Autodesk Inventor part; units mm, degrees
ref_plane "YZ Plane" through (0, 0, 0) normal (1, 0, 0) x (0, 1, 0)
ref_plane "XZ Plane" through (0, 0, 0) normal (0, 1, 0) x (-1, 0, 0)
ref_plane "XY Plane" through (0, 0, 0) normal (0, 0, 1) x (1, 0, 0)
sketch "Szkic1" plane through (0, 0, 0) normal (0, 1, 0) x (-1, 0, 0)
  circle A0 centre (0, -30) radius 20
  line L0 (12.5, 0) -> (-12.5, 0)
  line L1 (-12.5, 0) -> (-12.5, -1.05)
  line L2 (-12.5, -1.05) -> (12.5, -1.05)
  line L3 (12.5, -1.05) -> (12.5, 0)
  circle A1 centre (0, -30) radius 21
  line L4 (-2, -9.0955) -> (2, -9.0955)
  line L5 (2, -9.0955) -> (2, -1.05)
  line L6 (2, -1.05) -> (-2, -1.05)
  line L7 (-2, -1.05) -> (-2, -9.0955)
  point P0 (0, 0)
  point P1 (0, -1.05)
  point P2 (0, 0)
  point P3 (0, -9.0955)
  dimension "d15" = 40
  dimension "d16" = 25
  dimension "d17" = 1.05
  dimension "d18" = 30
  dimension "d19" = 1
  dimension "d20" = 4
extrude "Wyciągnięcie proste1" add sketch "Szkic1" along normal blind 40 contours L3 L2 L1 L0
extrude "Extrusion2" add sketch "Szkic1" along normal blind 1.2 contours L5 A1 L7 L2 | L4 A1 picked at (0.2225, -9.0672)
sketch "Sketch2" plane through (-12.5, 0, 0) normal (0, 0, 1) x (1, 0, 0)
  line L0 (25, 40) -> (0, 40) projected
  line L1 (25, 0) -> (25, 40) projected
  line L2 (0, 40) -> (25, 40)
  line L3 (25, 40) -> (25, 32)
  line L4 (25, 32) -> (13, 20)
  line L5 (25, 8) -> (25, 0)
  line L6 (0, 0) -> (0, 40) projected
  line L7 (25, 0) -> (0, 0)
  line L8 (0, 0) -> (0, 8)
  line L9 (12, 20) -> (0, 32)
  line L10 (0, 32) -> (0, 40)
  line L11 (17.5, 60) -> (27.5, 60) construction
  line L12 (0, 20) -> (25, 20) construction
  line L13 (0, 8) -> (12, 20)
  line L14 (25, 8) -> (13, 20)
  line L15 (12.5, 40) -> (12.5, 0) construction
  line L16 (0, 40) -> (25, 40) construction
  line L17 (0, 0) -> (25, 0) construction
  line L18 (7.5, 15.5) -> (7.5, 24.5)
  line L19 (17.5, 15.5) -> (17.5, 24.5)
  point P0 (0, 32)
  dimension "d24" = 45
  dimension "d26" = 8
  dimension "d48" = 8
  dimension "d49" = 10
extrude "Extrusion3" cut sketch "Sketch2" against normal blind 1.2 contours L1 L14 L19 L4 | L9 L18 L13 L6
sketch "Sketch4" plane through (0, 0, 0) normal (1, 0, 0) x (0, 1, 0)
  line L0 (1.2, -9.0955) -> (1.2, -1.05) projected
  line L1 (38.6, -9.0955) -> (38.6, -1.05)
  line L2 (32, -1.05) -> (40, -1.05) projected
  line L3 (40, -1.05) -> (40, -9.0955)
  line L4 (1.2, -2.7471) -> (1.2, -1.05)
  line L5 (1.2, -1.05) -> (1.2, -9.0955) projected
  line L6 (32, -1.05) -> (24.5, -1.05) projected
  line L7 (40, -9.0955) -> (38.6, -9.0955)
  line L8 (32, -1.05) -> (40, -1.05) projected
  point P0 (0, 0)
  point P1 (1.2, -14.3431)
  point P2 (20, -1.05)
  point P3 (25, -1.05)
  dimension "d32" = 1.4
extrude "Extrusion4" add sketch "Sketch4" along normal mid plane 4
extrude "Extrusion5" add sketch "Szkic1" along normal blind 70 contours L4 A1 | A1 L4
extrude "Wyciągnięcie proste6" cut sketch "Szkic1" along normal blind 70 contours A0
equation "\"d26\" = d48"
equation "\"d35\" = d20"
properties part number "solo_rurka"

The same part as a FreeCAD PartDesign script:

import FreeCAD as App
import Part
import Sketcher

doc = App.newDocument("Part")
body = doc.addObject("PartDesign::Body", "Body")

# Sketch on XZ plane
sketch1 = body.newObject("Sketcher::SketchObject", "Sketch")
sketch1.AttachmentSupport = (doc.getObject("XZ_Plane"), [""])
sketch1.MapMode = "FlatFace"
sketch1.addGeometry([
    Part.LineSegment(App.Vector(-12.5, -1.1, 0), App.Vector(-12.5, 0, 0)),
    Part.LineSegment(App.Vector(-12.5, 0, 0), App.Vector(12.5, 0, 0)),
    Part.LineSegment(App.Vector(12.5, 0, 0), App.Vector(12.5, -1.1, 0)),
    Part.LineSegment(App.Vector(12.5, -1.1, 0), App.Vector(-12.5, -1.1, 0)),
], False)
sketch1.addConstraint([
    Sketcher.Constraint("Coincident", 0, 2, 1, 1),
    Sketcher.Constraint("Coincident", 1, 2, 2, 1),
    Sketcher.Constraint("Coincident", 2, 2, 3, 1),
    Sketcher.Constraint("Coincident", 3, 2, 0, 1),
    Sketcher.Constraint("Vertical", 0),
    Sketcher.Constraint("Horizontal", 1),
    Sketcher.Constraint("Vertical", 2),
    Sketcher.Constraint("Horizontal", 3),
    Sketcher.Constraint("Symmetric", 0, 2, 1, 2, -1, 1),
    Sketcher.Constraint("DistanceX", 1, 1, 1, 2, 25.0),
    Sketcher.Constraint("DistanceY", 0, 1, 0, 2, 1.05),
])
pad1 = body.newObject("PartDesign::Pad", "Pad")
pad1.Profile = sketch1
pad1.Length = 40
pad1.Reversed = True

# Sketch on XZ plane
sketch2 = body.newObject("Sketcher::SketchObject", "Sketch001")
sketch2.AttachmentSupport = (doc.getObject("XZ_Plane"), [""])
sketch2.MapMode = "FlatFace"
sketch2.addGeometry([
    Part.LineSegment(App.Vector(-2, -9.1, 0), App.Vector(-2, -1.1, 0)),
    Part.LineSegment(App.Vector(-2, -1.1, 0), App.Vector(2, -1.1, 0)),
    Part.LineSegment(App.Vector(2, -1.1, 0), App.Vector(2, -9.1, 0)),
    Part.LineSegment(App.Vector(2, -9.1, 0), App.Vector(-2, -9.1, 0)),
], False)
sketch2.addConstraint([
    Sketcher.Constraint("Coincident", 0, 2, 1, 1),
    Sketcher.Constraint("Coincident", 1, 2, 2, 1),
    Sketcher.Constraint("Coincident", 2, 2, 3, 1),
    Sketcher.Constraint("Coincident", 3, 2, 0, 1),
    Sketcher.Constraint("Vertical", 0),
    Sketcher.Constraint("Horizontal", 1),
    Sketcher.Constraint("Vertical", 2),
    Sketcher.Constraint("Horizontal", 3),
    Sketcher.Constraint("DistanceX", 1, 1, 1, 2, 4.0),
    Sketcher.Constraint("DistanceY", 0, 2, -1, 1, 1.05),
    Sketcher.Constraint("DistanceX", 0, 2, -1, 1, 2.0),
    Sketcher.Constraint("DistanceY", 0, 1, 0, 2, 8.0455),
])
pad2 = body.newObject("PartDesign::Pad", "Pad001")
pad2.Profile = sketch2
pad2.Length = 1.2
pad2.Reversed = True

# Sketch on XY plane
sketch3 = body.newObject("Sketcher::SketchObject", "Sketch002")
sketch3.AttachmentSupport = (doc.getObject("XY_Plane"), [""])
sketch3.MapMode = "FlatFace"
sketch3.addGeometry([
    Part.LineSegment(App.Vector(12, 8, 0), App.Vector(12, 32, 0)),  # 0
    Part.LineSegment(App.Vector(12, 32, 0), App.Vector(5, 24, 0)),  # 1
    Part.LineSegment(App.Vector(5, 24, 0), App.Vector(5, 16, 0)),  # 2
    Part.LineSegment(App.Vector(5, 16, 0), App.Vector(12, 8, 0)),  # 3
    Part.LineSegment(App.Vector(-5, 24, 0), App.Vector(-12, 32, 0)),  # 4
    Part.LineSegment(App.Vector(-12, 32, 0), App.Vector(-12, 8, 0)),  # 5
    Part.LineSegment(App.Vector(-12, 8, 0), App.Vector(-5, 16, 0)),  # 6
    Part.LineSegment(App.Vector(-5, 16, 0), App.Vector(-5, 24, 0)),  # 7
], False)
sketch3.addConstraint([
    Sketcher.Constraint("Coincident", 0, 2, 1, 1),
    Sketcher.Constraint("Coincident", 1, 2, 2, 1),
    Sketcher.Constraint("Coincident", 2, 2, 3, 1),
    Sketcher.Constraint("Coincident", 3, 2, 0, 1),
    Sketcher.Constraint("Coincident", 4, 2, 5, 1),
    Sketcher.Constraint("Coincident", 5, 2, 6, 1),
    Sketcher.Constraint("Coincident", 6, 2, 7, 1),
    Sketcher.Constraint("Coincident", 7, 2, 4, 1),
    Sketcher.Constraint("Vertical", 0),
    Sketcher.Constraint("Vertical", 2),
    Sketcher.Constraint("Vertical", 5),
    Sketcher.Constraint("Vertical", 7),
    Sketcher.Constraint("Symmetric", 0, 2, 4, 2, -2),
    Sketcher.Constraint("Symmetric", 2, 2, 6, 2, -2),
    Sketcher.Constraint("Perpendicular", 1, 3),
    Sketcher.Constraint("Parallel", 3, 4),
    Sketcher.Constraint("Perpendicular", 4, 6),
    Sketcher.Constraint("Horizontal", 3, 2, 5, 2),
    Sketcher.Constraint("DistanceY", -1, 1, 3, 2, 8.0),
    Sketcher.Constraint("DistanceX", 6, 2, 2, 2, 10.0),
    Sketcher.Constraint("DistanceY", 0, 1, 0, 2, 24.0),
    Sketcher.Constraint("DistanceY", 2, 2, 2, 1, 9.0),
])
pocket1 = body.newObject("PartDesign::Pocket", "Pocket")
pocket1.Profile = sketch3
pocket1.Length = 1.2

# Sketch on YZ plane
sketch4 = body.newObject("Sketcher::SketchObject", "Sketch003")
sketch4.AttachmentSupport = (doc.getObject("YZ_Plane"), [""])
sketch4.MapMode = "FlatFace"
sketch4.addGeometry([
    Part.LineSegment(App.Vector(38.6, -1.1, 0), App.Vector(38.6, -9.1, 0)),
    Part.LineSegment(App.Vector(38.6, -9.1, 0), App.Vector(40, -9.1, 0)),
    Part.LineSegment(App.Vector(40, -9.1, 0), App.Vector(40, -1.1, 0)),
    Part.LineSegment(App.Vector(40, -1.1, 0), App.Vector(38.6, -1.1, 0)),
], False)
sketch4.addConstraint([
    Sketcher.Constraint("Coincident", 0, 2, 1, 1),
    Sketcher.Constraint("Coincident", 1, 2, 2, 1),
    Sketcher.Constraint("Coincident", 2, 2, 3, 1),
    Sketcher.Constraint("Coincident", 3, 2, 0, 1),
    Sketcher.Constraint("Vertical", 0),
    Sketcher.Constraint("Horizontal", 1),
    Sketcher.Constraint("Vertical", 2),
    Sketcher.Constraint("Horizontal", 3),
    Sketcher.Constraint("DistanceX", 1, 1, 1, 2, 1.4),
    Sketcher.Constraint("DistanceX", -1, 1, 1, 2, 40.0),
    Sketcher.Constraint("DistanceY", 2, 2, -1, 1, 1.05),
    Sketcher.Constraint("DistanceY", 0, 2, 0, 1, 8.0455),
])
pad3 = body.newObject("PartDesign::Pad", "Pad002")
pad3.Profile = sketch4
pad3.Length = 4
pad3.Midplane = True

# Sketch on XZ plane
sketch5 = body.newObject("Sketcher::SketchObject", "Sketch004")
sketch5.AttachmentSupport = (doc.getObject("XZ_Plane"), [""])
sketch5.MapMode = "FlatFace"
sketch5.addGeometry([
    Part.Circle(App.Vector(0, -30, 0), App.Vector(0, 0, 1), 21),
    Part.Circle(App.Vector(0, -30, 0), App.Vector(0, 0, 1), 20),
], False)
sketch5.addConstraint([
    Sketcher.Constraint("Coincident", 1, 3, 0, 3),
    Sketcher.Constraint("PointOnObject", 0, 3, -2),
    Sketcher.Constraint("Diameter", 1, 40.0),
    Sketcher.Constraint("Diameter", 0, 42.0),
    Sketcher.Constraint("DistanceY", 0, 3, -1, 1, 30.0),
])
pad4 = body.newObject("PartDesign::Pad", "Pad003")
pad4.Profile = sketch5
pad4.Length = 70
pad4.Reversed = True

# Sketch on XZ plane
sketch6 = body.newObject("Sketcher::SketchObject", "Sketch005")
sketch6.AttachmentSupport = (doc.getObject("XZ_Plane"), [""])
sketch6.MapMode = "FlatFace"
sketch6.addGeometry(Part.Circle(App.Vector(0, -30, 0), App.Vector(0, 0, 1), 20), False)
sketch6.addConstraint([
    Sketcher.Constraint("PointOnObject", 0, 3, -2),
    Sketcher.Constraint("Diameter", 0, 40.0),
    Sketcher.Constraint("DistanceY", 0, 3, -1, 1, 30.0),
])
pocket2 = body.newObject("PartDesign::Pocket", "Pocket001")
pocket2.Profile = sketch6
pocket2.Length = 70

doc.recompute()
